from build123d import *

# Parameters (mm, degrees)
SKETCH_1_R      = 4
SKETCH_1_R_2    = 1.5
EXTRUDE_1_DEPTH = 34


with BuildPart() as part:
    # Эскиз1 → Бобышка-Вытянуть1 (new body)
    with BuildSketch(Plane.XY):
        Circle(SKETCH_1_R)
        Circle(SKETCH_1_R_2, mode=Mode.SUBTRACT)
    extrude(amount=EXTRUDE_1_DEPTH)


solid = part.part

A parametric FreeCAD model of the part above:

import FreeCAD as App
import Part
import Sketcher

doc = App.newDocument("Part")
body = doc.addObject("PartDesign::Body", "Body")

# Sketch on XY plane
sketch1 = body.newObject("Sketcher::SketchObject", "Sketch")
sketch1.AttachmentSupport = (doc.getObject("XY_Plane"), [""])
sketch1.MapMode = "FlatFace"
sketch1.addGeometry([
    Part.Circle(App.Vector(0, 0, 0), App.Vector(0, 0, 1), 4),
    Part.Circle(App.Vector(0, 0, 0), App.Vector(0, 0, 1), 1.5),
], False)
sketch1.addConstraint([
    Sketcher.Constraint("Coincident", 0, 3, -1, 1),
    Sketcher.Constraint("Coincident", 1, 3, -1, 1),
    Sketcher.Constraint("Diameter", 0, 8.0),
    Sketcher.Constraint("Diameter", 1, 3.0),
])
pad1 = body.newObject("PartDesign::Pad", "Pad")
pad1.Profile = sketch1
pad1.Length = 34

doc.recompute()
